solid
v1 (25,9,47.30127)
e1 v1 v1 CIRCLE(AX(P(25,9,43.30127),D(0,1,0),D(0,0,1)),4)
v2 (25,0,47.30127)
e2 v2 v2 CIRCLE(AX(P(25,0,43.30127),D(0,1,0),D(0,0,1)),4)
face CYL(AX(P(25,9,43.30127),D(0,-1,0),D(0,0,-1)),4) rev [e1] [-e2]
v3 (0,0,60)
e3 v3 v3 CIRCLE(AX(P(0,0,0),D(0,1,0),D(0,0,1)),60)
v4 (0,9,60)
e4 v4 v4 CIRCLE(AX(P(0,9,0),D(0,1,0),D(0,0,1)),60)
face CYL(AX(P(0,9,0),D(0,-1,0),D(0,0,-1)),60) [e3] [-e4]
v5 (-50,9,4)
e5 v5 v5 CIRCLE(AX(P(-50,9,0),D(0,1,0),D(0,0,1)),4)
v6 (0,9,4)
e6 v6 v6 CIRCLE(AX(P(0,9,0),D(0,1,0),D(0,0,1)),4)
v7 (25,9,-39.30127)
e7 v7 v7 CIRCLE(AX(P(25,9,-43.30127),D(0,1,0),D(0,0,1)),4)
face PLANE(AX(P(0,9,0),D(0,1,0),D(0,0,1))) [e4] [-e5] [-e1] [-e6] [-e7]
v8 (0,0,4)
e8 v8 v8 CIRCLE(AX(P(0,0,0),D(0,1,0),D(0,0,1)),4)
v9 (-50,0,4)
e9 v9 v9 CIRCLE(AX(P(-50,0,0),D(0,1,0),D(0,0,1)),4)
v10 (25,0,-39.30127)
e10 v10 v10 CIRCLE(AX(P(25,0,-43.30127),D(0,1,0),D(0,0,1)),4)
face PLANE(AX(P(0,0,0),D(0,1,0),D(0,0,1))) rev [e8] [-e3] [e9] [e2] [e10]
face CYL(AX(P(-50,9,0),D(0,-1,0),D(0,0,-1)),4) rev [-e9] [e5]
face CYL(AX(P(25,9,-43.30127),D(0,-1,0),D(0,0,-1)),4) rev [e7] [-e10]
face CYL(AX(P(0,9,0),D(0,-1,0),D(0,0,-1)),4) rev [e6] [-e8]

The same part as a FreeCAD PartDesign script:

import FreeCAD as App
import Part
import Sketcher

doc = App.newDocument("Part")
body = doc.addObject("PartDesign::Body", "Body")

# Sketch on XZ plane
sketch1 = body.newObject("Sketcher::SketchObject", "Sketch")
sketch1.AttachmentSupport = (doc.getObject("XZ_Plane"), [""])
sketch1.MapMode = "FlatFace"
sketch1.addGeometry(Part.Circle(App.Vector(0, 0, 0), App.Vector(0, 0, 1), 60), False)
sketch1.addGeometry(Part.Circle(App.Vector(-50, 0, 0), App.Vector(0, 0, 1), 4), False)
sketch1.addGeometry(Part.Circle(App.Vector(25, -43.30127, 0), App.Vector(0, 0, 1), 4), False)
sketch1.addGeometry(Part.Circle(App.Vector(0, 0, 0), App.Vector(0, 0, 1), 4), False)
sketch1.addGeometry(Part.Circle(App.Vector(25, 43.30127, 0), App.Vector(0, 0, 1), 4), False)
sketch1.addConstraint(Sketcher.Constraint("Coincident", 0, 3, -1, 1))
sketch1.addConstraint(Sketcher.Constraint("Coincident", 3, 3, -1, 1))
sketch1.addConstraint(Sketcher.Constraint("Equal", 1, 2))
sketch1.addConstraint(Sketcher.Constraint("Equal", 2, 3))
sketch1.addConstraint(Sketcher.Constraint("Equal", 3, 4))
sketch1.addConstraint(Sketcher.Constraint("Symmetric", 2, 3, 4, 3, -1))
sketch1.addConstraint(Sketcher.Constraint("PointOnObject", 1, 3, -1))
sketch1.addConstraint(Sketcher.Constraint("Diameter", 0, 120.0))
sketch1.addConstraint(Sketcher.Constraint("Diameter", 1, 8.0))
sketch1.addConstraint(Sketcher.Constraint("DistanceX", 1, 3, -1, 1, 50.0))
sketch1.addConstraint(Sketcher.Constraint("DistanceX", -1, 1, 2, 3, 25.0))
sketch1.addConstraint(Sketcher.Constraint("DistanceY", 2, 3, -1, 1, 43.30127))
pad1 = body.newObject("PartDesign::Pad", "Pad")
pad1.Profile = sketch1
pad1.Length = 9
pad1.Reversed = True

doc.recompute()
